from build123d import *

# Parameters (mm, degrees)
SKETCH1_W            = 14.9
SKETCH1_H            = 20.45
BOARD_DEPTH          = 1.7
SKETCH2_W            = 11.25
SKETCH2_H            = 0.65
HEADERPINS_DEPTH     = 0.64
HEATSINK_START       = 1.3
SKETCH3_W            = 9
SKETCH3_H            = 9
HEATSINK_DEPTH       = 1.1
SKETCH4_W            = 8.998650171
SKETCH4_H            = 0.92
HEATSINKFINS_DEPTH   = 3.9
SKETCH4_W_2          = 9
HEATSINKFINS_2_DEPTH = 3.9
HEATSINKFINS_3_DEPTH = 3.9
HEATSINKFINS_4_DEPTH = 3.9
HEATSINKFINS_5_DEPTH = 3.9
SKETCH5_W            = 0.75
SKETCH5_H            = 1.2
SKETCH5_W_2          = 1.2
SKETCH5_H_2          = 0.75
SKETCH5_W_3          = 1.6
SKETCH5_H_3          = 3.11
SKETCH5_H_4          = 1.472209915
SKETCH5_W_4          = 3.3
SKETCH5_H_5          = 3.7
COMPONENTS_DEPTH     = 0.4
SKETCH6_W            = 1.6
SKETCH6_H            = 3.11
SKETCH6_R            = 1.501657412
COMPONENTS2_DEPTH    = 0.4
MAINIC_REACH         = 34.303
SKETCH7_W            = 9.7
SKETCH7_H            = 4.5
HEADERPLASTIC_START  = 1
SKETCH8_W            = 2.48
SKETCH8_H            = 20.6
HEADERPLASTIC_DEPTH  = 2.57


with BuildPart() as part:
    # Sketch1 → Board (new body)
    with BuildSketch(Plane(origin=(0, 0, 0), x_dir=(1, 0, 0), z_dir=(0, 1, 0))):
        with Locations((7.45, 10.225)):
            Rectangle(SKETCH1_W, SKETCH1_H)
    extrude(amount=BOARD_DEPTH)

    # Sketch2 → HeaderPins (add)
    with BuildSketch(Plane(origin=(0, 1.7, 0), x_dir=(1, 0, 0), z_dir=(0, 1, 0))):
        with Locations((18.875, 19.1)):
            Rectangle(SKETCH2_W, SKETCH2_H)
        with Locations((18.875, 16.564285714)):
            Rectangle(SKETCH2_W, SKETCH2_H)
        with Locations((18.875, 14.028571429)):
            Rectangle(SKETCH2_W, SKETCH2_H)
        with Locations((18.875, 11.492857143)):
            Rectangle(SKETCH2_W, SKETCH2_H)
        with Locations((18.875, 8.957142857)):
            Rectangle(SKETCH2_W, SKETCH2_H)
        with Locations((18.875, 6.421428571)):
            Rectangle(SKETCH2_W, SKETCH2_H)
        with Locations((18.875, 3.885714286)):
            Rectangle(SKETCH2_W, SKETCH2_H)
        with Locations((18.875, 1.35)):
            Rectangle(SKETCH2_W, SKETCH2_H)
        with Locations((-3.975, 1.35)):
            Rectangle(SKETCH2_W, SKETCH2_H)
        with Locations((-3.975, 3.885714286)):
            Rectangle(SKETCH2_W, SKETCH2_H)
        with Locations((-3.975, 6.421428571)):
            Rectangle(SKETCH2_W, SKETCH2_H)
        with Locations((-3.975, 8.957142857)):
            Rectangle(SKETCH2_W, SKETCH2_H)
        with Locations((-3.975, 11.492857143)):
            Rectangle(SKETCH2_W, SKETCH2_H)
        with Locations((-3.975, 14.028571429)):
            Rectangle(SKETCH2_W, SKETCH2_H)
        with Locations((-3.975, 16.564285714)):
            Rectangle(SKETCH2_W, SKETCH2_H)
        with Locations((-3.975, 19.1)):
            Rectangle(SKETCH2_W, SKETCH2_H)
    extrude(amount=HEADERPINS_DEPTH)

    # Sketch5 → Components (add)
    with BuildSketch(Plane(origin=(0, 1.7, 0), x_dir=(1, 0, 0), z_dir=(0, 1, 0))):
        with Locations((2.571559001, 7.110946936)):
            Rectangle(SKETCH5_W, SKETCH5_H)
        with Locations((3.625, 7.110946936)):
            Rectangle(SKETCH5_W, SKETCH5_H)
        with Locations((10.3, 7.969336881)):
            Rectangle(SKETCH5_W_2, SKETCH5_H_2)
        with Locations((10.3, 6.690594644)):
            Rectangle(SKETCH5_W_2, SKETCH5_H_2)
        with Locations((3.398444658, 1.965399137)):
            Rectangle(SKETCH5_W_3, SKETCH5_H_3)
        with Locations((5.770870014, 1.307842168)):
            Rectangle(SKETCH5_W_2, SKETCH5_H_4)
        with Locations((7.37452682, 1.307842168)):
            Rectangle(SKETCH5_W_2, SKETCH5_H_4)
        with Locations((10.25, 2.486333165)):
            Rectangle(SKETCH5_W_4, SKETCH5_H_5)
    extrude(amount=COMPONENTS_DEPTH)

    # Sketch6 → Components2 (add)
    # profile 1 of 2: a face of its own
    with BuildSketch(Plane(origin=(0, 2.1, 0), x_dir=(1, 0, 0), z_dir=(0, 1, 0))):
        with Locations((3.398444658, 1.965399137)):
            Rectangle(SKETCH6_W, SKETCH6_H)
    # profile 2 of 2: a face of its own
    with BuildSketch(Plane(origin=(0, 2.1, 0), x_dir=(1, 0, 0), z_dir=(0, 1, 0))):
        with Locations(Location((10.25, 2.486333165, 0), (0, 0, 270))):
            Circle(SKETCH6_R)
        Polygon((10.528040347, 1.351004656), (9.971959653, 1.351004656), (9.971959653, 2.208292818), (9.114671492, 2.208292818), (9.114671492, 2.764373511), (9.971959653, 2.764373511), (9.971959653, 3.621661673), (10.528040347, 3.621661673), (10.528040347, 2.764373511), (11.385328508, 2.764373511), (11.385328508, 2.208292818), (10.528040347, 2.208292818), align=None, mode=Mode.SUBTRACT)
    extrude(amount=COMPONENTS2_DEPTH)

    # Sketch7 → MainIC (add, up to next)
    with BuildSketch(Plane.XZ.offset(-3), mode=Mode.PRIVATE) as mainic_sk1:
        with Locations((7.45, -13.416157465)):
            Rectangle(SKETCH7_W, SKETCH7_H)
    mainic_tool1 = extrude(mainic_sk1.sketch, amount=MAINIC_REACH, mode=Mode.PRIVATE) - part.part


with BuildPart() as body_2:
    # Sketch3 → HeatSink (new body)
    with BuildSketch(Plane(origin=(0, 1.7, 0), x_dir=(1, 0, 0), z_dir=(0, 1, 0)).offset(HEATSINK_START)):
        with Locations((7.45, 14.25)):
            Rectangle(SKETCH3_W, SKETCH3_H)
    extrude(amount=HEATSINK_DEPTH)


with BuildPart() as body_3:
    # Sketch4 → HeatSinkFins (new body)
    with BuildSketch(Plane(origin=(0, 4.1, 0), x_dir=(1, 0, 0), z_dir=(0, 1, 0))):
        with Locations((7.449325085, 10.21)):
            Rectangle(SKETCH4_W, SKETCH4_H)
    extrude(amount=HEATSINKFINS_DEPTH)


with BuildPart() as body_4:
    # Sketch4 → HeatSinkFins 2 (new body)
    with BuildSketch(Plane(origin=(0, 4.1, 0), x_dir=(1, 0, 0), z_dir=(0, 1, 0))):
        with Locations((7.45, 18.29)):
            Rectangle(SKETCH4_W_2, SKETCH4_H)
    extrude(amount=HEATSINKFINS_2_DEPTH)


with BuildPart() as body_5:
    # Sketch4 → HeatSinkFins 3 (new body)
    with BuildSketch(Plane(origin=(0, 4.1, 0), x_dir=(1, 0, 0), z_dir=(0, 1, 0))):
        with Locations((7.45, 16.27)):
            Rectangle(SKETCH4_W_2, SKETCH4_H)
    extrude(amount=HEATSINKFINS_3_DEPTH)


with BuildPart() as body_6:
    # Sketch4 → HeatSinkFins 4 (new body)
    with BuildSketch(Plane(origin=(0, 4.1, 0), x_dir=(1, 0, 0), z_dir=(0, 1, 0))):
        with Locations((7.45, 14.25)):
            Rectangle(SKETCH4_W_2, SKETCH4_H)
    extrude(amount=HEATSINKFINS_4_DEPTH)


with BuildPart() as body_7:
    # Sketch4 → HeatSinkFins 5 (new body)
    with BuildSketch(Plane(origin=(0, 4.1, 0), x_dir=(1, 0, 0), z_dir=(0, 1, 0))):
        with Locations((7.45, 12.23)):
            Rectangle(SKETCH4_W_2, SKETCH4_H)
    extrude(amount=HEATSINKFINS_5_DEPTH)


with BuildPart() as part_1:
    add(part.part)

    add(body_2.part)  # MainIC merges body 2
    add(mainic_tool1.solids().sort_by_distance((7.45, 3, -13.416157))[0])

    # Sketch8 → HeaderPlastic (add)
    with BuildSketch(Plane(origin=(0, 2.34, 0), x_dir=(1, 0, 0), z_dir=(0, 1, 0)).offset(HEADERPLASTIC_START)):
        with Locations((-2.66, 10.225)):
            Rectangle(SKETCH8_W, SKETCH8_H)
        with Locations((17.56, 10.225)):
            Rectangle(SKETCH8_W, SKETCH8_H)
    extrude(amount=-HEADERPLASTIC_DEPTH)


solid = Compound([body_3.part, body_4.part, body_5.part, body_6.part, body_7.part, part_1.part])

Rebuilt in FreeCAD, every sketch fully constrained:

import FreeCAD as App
import Part
import Sketcher

V = App.Vector


def add_polygon(sketch, points):
    """Adds a closed chain of lines whose ends are joined by coincident constraints."""
    first, n = sketch.GeometryCount, len(points)
    for a, b in zip(points, points[1:] + points[:1]):
        sketch.addGeometry(Part.LineSegment(App.Vector(*a, 0), App.Vector(*b, 0)), False)
    for i in range(n):
        sketch.addConstraint(Sketcher.Constraint("Coincident", first + i, 2, first + (i + 1) % n, 1))

doc = App.newDocument("Part")
body = doc.addObject("PartDesign::Body", "Body")

# Sketch on XZ plane
sketch1 = doc.addObject("Sketcher::SketchObject", "Sketch")
body.addObject(sketch1)
sketch1.AttachmentSupport = (doc.XZ_Plane, [""])
sketch1.MapMode = "FlatFace"
add_polygon(sketch1, [(0, -20), (0, 0), (15, 0), (15, -20)])  # lines 0-3
sketch1.addConstraint(Sketcher.Constraint("Vertical", 0))
sketch1.addConstraint(Sketcher.Constraint("Horizontal", 1))
sketch1.addConstraint(Sketcher.Constraint("Vertical", 2))
sketch1.addConstraint(Sketcher.Constraint("Horizontal", 3))
sketch1.addConstraint(Sketcher.Constraint("Coincident", 0, 2, -1, 1))
sketch1.addConstraint(Sketcher.Constraint("DistanceX", 1, 1, 1, 2, 14.9))
sketch1.addConstraint(Sketcher.Constraint("DistanceY", 0, 1, 0, 2, 20.45))
pad1 = doc.addObject("PartDesign::Pad", "Pad")
body.addObject(pad1)
pad1.Profile = sketch1
pad1.Length = 1.7
pad1.Reversed = True

# Sketch on XZ plane
sketch2 = doc.addObject("Sketcher::SketchObject", "Sketch001")
body.addObject(sketch2)
sketch2.AttachmentSupport = (doc.XZ_Plane, [""])
sketch2.MapMode = "FlatFace"
sketch2.AttachmentOffset = App.Placement(V(0, 0, -1.7), App.Rotation())
add_polygon(sketch2, [(13.2, -19.4), (13.2, -18.8), (24.5, -18.8), (24.5, -19.4)])  # lines 0-3
add_polygon(sketch2, [(13.2, -16.9), (13.2, -16.2), (24.5, -16.2), (24.5, -16.9)])  # lines 4-7
add_polygon(sketch2, [(13.2, -14.4), (13.2, -13.7), (24.5, -13.7), (24.5, -14.4)])  # lines 8-11
add_polygon(sketch2, [(13.2, -11.8), (13.2, -11.2), (24.5, -11.2), (24.5, -11.8)])  # lines 12-15
add_polygon(sketch2, [(13.2, -9.3), (13.2, -8.6), (24.5, -8.6), (24.5, -9.3)])  # lines 16-19
add_polygon(sketch2, [(13.2, -6.7), (13.2, -6.1), (24.5, -6.1), (24.5, -6.7)])  # lines 20-23
add_polygon(sketch2, [(13.2, -4.2), (13.2, -3.6), (24.5, -3.6), (24.5, -4.2)])  # lines 24-27
add_polygon(sketch2, [(13.2, -1.7), (13.2, -1), (24.5, -1), (24.5, -1.7)])  # lines 28-31
add_polygon(sketch2, [(-9.6, -1.7), (-9.6, -1), (1.6, -1), (1.6, -1.7)])  # lines 32-35
add_polygon(sketch2, [(-9.6, -4.2), (-9.6, -3.6), (1.6, -3.6), (1.6, -4.2)])  # lines 36-39
add_polygon(sketch2, [(-9.6, -6.7), (-9.6, -6.1), (1.6, -6.1), (1.6, -6.7)])  # lines 40-43
add_polygon(sketch2, [(-9.6, -9.3), (-9.6, -8.6), (1.6, -8.6), (1.6, -9.3)])  # lines 44-47
add_polygon(sketch2, [(-9.6, -11.8), (-9.6, -11.2), (1.6, -11.2), (1.6, -11.8)])  # lines 48-51
add_polygon(sketch2, [(-9.6, -14.4), (-9.6, -13.7), (1.6, -13.7), (1.6, -14.4)])  # lines 52-55
add_polygon(sketch2, [(-9.6, -16.9), (-9.6, -16.2), (1.6, -16.2), (1.6, -16.9)])  # lines 56-59
add_polygon(sketch2, [(-9.6, -19.4), (-9.6, -18.8), (1.6, -18.8), (1.6, -19.4)])  # lines 60-63
sketch2.addConstraint(Sketcher.Constraint("Vertical", 0))
sketch2.addConstraint(Sketcher.Constraint("Horizontal", 1))
sketch2.addConstraint(Sketcher.Constraint("Vertical", 2))
sketch2.addConstraint(Sketcher.Constraint("Horizontal", 3))
sketch2.addConstraint(Sketcher.Constraint("Vertical", 4))
sketch2.addConstraint(Sketcher.Constraint("Horizontal", 5))
sketch2.addConstraint(Sketcher.Constraint("Vertical", 6))
sketch2.addConstraint(Sketcher.Constraint("Horizontal", 7))
sketch2.addConstraint(Sketcher.Constraint("Vertical", 8))
sketch2.addConstraint(Sketcher.Constraint("Horizontal", 9))
sketch2.addConstraint(Sketcher.Constraint("Vertical", 10))
sketch2.addConstraint(Sketcher.Constraint("Horizontal", 11))
sketch2.addConstraint(Sketcher.Constraint("Vertical", 12))
sketch2.addConstraint(Sketcher.Constraint("Horizontal", 13))
sketch2.addConstraint(Sketcher.Constraint("Vertical", 14))
sketch2.addConstraint(Sketcher.Constraint("Horizontal", 15))
sketch2.addConstraint(Sketcher.Constraint("Vertical", 16))
sketch2.addConstraint(Sketcher.Constraint("Horizontal", 17))
sketch2.addConstraint(Sketcher.Constraint("Vertical", 18))
sketch2.addConstraint(Sketcher.Constraint("Horizontal", 19))
sketch2.addConstraint(Sketcher.Constraint("Vertical", 20))
sketch2.addConstraint(Sketcher.Constraint("Horizontal", 21))
sketch2.addConstraint(Sketcher.Constraint("Vertical", 22))
sketch2.addConstraint(Sketcher.Constraint("Horizontal", 23))
sketch2.addConstraint(Sketcher.Constraint("Vertical", 24))
sketch2.addConstraint(Sketcher.Constraint("Horizontal", 25))
sketch2.addConstraint(Sketcher.Constraint("Vertical", 26))
sketch2.addConstraint(Sketcher.Constraint("Horizontal", 27))
sketch2.addConstraint(Sketcher.Constraint("Vertical", 28))
sketch2.addConstraint(Sketcher.Constraint("Horizontal", 29))
sketch2.addConstraint(Sketcher.Constraint("Vertical", 30))
sketch2.addConstraint(Sketcher.Constraint("Horizontal", 31))
sketch2.addConstraint(Sketcher.Constraint("Vertical", 32))
sketch2.addConstraint(Sketcher.Constraint("Horizontal", 33))
sketch2.addConstraint(Sketcher.Constraint("Vertical", 34))
sketch2.addConstraint(Sketcher.Constraint("Horizontal", 35))
sketch2.addConstraint(Sketcher.Constraint("Vertical", 36))
sketch2.addConstraint(Sketcher.Constraint("Horizontal", 37))
sketch2.addConstraint(Sketcher.Constraint("Vertical", 38))
sketch2.addConstraint(Sketcher.Constraint("Horizontal", 39))
sketch2.addConstraint(Sketcher.Constraint("Vertical", 40))
sketch2.addConstraint(Sketcher.Constraint("Horizontal", 41))
sketch2.addConstraint(Sketcher.Constraint("Vertical", 42))
sketch2.addConstraint(Sketcher.Constraint("Horizontal", 43))
sketch2.addConstraint(Sketcher.Constraint("Vertical", 44))
sketch2.addConstraint(Sketcher.Constraint("Horizontal", 45))
sketch2.addConstraint(Sketcher.Constraint("Vertical", 46))
sketch2.addConstraint(Sketcher.Constraint("Horizontal", 47))
sketch2.addConstraint(Sketcher.Constraint("Vertical", 48))
sketch2.addConstraint(Sketcher.Constraint("Horizontal", 49))
sketch2.addConstraint(Sketcher.Constraint("Vertical", 50))
sketch2.addConstraint(Sketcher.Constraint("Horizontal", 51))
sketch2.addConstraint(Sketcher.Constraint("Vertical", 52))
sketch2.addConstraint(Sketcher.Constraint("Horizontal", 53))
sketch2.addConstraint(Sketcher.Constraint("Vertical", 54))
sketch2.addConstraint(Sketcher.Constraint("Horizontal", 55))
sketch2.addConstraint(Sketcher.Constraint("Vertical", 56))
sketch2.addConstraint(Sketcher.Constraint("Horizontal", 57))
sketch2.addConstraint(Sketcher.Constraint("Vertical", 58))
sketch2.addConstraint(Sketcher.Constraint("Horizontal", 59))
sketch2.addConstraint(Sketcher.Constraint("Vertical", 60))
sketch2.addConstraint(Sketcher.Constraint("Horizontal", 61))
sketch2.addConstraint(Sketcher.Constraint("Vertical", 62))
sketch2.addConstraint(Sketcher.Constraint("Horizontal", 63))
sketch2.addConstraint(Sketcher.Constraint("Horizontal", 29, 2, 32, 2))
sketch2.addConstraint(Sketcher.Constraint("Horizontal", 31, 2, 34, 2))
sketch2.addConstraint(Sketcher.Constraint("Horizontal", 25, 2, 36, 2))
sketch2.addConstraint(Sketcher.Constraint("Horizontal", 27, 2, 38, 2))
sketch2.addConstraint(Sketcher.Constraint("Horizontal", 21, 2, 40, 2))
sketch2.addConstraint(Sketcher.Constraint("Horizontal", 23, 2, 42, 2))
sketch2.addConstraint(Sketcher.Constraint("Horizontal", 17, 2, 44, 2))
sketch2.addConstraint(Sketcher.Constraint("Horizontal", 19, 2, 46, 2))
sketch2.addConstraint(Sketcher.Constraint("Horizontal", 13, 2, 48, 2))
sketch2.addConstraint(Sketcher.Constraint("Horizontal", 15, 2, 50, 2))
sketch2.addConstraint(Sketcher.Constraint("Horizontal", 9, 2, 52, 2))
sketch2.addConstraint(Sketcher.Constraint("Horizontal", 11, 2, 54, 2))
sketch2.addConstraint(Sketcher.Constraint("Horizontal", 5, 2, 56, 2))
sketch2.addConstraint(Sketcher.Constraint("Horizontal", 7, 2, 58, 2))
sketch2.addConstraint(Sketcher.Constraint("Horizontal", 1, 2, 60, 2))
sketch2.addConstraint(Sketcher.Constraint("Horizontal", 3, 2, 62, 2))
sketch2.addConstraint(Sketcher.Constraint("Vertical", 3, 2, 4, 2))
sketch2.addConstraint(Sketcher.Constraint("Vertical", 2, 2, 5, 2))
sketch2.addConstraint(Sketcher.Constraint("Vertical", 7, 2, 8, 2))
sketch2.addConstraint(Sketcher.Constraint("Vertical", 6, 2, 9, 2))
sketch2.addConstraint(Sketcher.Constraint("Vertical", 11, 2, 12, 2))
sketch2.addConstraint(Sketcher.Constraint("Vertical", 10, 2, 13, 2))
sketch2.addConstraint(Sketcher.Constraint("Vertical", 15, 2, 16, 2))
sketch2.addConstraint(Sketcher.Constraint("Vertical", 14, 2, 17, 2))
sketch2.addConstraint(Sketcher.Constraint("Vertical", 19, 2, 20, 2))
sketch2.addConstraint(Sketcher.Constraint("Vertical", 18, 2, 21, 2))
sketch2.addConstraint(Sketcher.Constraint("Vertical", 23, 2, 24, 2))
sketch2.addConstraint(Sketcher.Constraint("Vertical", 22, 2, 25, 2))
sketch2.addConstraint(Sketcher.Constraint("Vertical", 27, 2, 28, 2))
sketch2.addConstraint(Sketcher.Constraint("Vertical", 26, 2, 29, 2))
sketch2.addConstraint(Sketcher.Constraint("Vertical", 35, 2, 36, 2))
sketch2.addConstraint(Sketcher.Constraint("Vertical", 34, 2, 37, 2))
sketch2.addConstraint(Sketcher.Constraint("Vertical", 39, 2, 40, 2))
sketch2.addConstraint(Sketcher.Constraint("Vertical", 38, 2, 41, 2))
sketch2.addConstraint(Sketcher.Constraint("Vertical", 43, 2, 44, 2))
sketch2.addConstraint(Sketcher.Constraint("Vertical", 42, 2, 45, 2))
sketch2.addConstraint(Sketcher.Constraint("Vertical", 47, 2, 48, 2))
sketch2.addConstraint(Sketcher.Constraint("Vertical", 46, 2, 49, 2))
sketch2.addConstraint(Sketcher.Constraint("Vertical", 51, 2, 52, 2))
sketch2.addConstraint(Sketcher.Constraint("Vertical", 50, 2, 53, 2))
sketch2.addConstraint(Sketcher.Constraint("Vertical", 55, 2, 56, 2))
sketch2.addConstraint(Sketcher.Constraint("Vertical", 54, 2, 57, 2))
sketch2.addConstraint(Sketcher.Constraint("Vertical", 59, 2, 60, 2))
sketch2.addConstraint(Sketcher.Constraint("Vertical", 58, 2, 61, 2))
sketch2.addConstraint(Sketcher.Constraint("Equal", 31, 33))
sketch2.addConstraint(Sketcher.Constraint("Equal", 2, 4))
sketch2.addConstraint(Sketcher.Constraint("Equal", 6, 8))
sketch2.addConstraint(Sketcher.Constraint("Equal", 10, 12))
sketch2.addConstraint(Sketcher.Constraint("Equal", 14, 16))
sketch2.addConstraint(Sketcher.Constraint("Equal", 18, 20))
sketch2.addConstraint(Sketcher.Constraint("Equal", 22, 24))
sketch2.addConstraint(Sketcher.Constraint("Equal", 26, 28))
sketch2.addConstraint(Sketcher.Constraint("DistanceX", 1, 1, 1, 2, 11.25))
sketch2.addConstraint(Sketcher.Constraint("DistanceY", 0, 1, 0, 2, 0.65))
sketch2.addConstraint(Sketcher.Constraint("DistanceX", -1, 1, 1, 2, 24.5))
sketch2.addConstraint(Sketcher.Constraint("DistanceX", 32, 2, -1, 1, 9.6))
sketch2.addConstraint(Sketcher.Constraint("DistanceY", 0, 2, -1, 1, 18.775))
sketch2.addConstraint(Sketcher.Constraint("DistanceY", 28, 2, -1, 1, 1.025))
sketch2.addConstraint(Sketcher.Constraint("DistanceY", 8, 2, -1, 1, 13.703571))
sketch2.addConstraint(Sketcher.Constraint("DistanceY", 20, 2, -1, 1, 6.096429))
sketch2.addConstraint(Sketcher.Constraint("DistanceY", 4, 2, -1, 1, 16.239286))
sketch2.addConstraint(Sketcher.Constraint("DistanceY", 12, 2, -1, 1, 11.167857))
sketch2.addConstraint(Sketcher.Constraint("DistanceY", 16, 2, -1, 1, 8.632143))
sketch2.addConstraint(Sketcher.Constraint("DistanceY", 24, 2, -1, 1, 3.560714))
pad2 = doc.addObject("PartDesign::Pad", "Pad001")
body.addObject(pad2)
pad2.Profile = sketch2
pad2.Length = 0.64
pad2.Reversed = True

# Sketch on XZ plane
sketch3 = doc.addObject("Sketcher::SketchObject", "Sketch002")
body.addObject(sketch3)
sketch3.AttachmentSupport = (doc.XZ_Plane, [""])
sketch3.MapMode = "FlatFace"
sketch3.AttachmentOffset = App.Placement(V(0, 0, -1.7), App.Rotation())
add_polygon(sketch3, [(2.2, -7.7), (2.2, -6.5), (2.9, -6.5), (2.9, -7.7)])  # lines 0-3
add_polygon(sketch3, [(3.2, -7.7), (3.2, -6.5), (4, -6.5), (4, -7.7)])  # lines 4-7
add_polygon(sketch3, [(9.7, -8.3), (9.7, -7.6), (10.9, -7.6), (10.9, -8.3)])  # lines 8-11
add_polygon(sketch3, [(9.7, -7.1), (9.7, -6.3), (10.9, -6.3), (10.9, -7.1)])  # lines 12-15
add_polygon(sketch3, [(2.6, -3.5), (2.6, -0.4), (4.2, -0.4), (4.2, -3.5)])  # lines 16-19
add_polygon(sketch3, [(5.2, -2), (5.2, -0.6), (6.4, -0.6), (6.4, -2)])  # lines 20-23
add_polygon(sketch3, [(6.8, -2), (6.8, -0.6), (8, -0.6), (8, -2)])  # lines 24-27
add_polygon(sketch3, [(8.6, -4.3), (8.6, -0.6), (11.9, -0.6), (11.9, -4.3)])  # lines 28-31
sketch3.addConstraint(Sketcher.Constraint("Vertical", 0))
sketch3.addConstraint(Sketcher.Constraint("Horizontal", 1))
sketch3.addConstraint(Sketcher.Constraint("Vertical", 2))
sketch3.addConstraint(Sketcher.Constraint("Horizontal", 3))
sketch3.addConstraint(Sketcher.Constraint("Vertical", 4))
sketch3.addConstraint(Sketcher.Constraint("Horizontal", 5))
sketch3.addConstraint(Sketcher.Constraint("Vertical", 6))
sketch3.addConstraint(Sketcher.Constraint("Horizontal", 7))
sketch3.addConstraint(Sketcher.Constraint("Vertical", 8))
sketch3.addConstraint(Sketcher.Constraint("Horizontal", 9))
sketch3.addConstraint(Sketcher.Constraint("Vertical", 10))
sketch3.addConstraint(Sketcher.Constraint("Horizontal", 11))
sketch3.addConstraint(Sketcher.Constraint("Vertical", 12))
sketch3.addConstraint(Sketcher.Constraint("Horizontal", 13))
sketch3.addConstraint(Sketcher.Constraint("Vertical", 14))
sketch3.addConstraint(Sketcher.Constraint("Horizontal", 15))
sketch3.addConstraint(Sketcher.Constraint("Vertical", 16))
sketch3.addConstraint(Sketcher.Constraint("Horizontal", 17))
sketch3.addConstraint(Sketcher.Constraint("Vertical", 18))
sketch3.addConstraint(Sketcher.Constraint("Horizontal", 19))
sketch3.addConstraint(Sketcher.Constraint("Vertical", 20))
sketch3.addConstraint(Sketcher.Constraint("Horizontal", 21))
sketch3.addConstraint(Sketcher.Constraint("Vertical", 22))
sketch3.addConstraint(Sketcher.Constraint("Horizontal", 23))
sketch3.addConstraint(Sketcher.Constraint("Vertical", 24))
sketch3.addConstraint(Sketcher.Constraint("Horizontal", 25))
sketch3.addConstraint(Sketcher.Constraint("Vertical", 26))
sketch3.addConstraint(Sketcher.Constraint("Horizontal", 27))
sketch3.addConstraint(Sketcher.Constraint("Vertical", 28))
sketch3.addConstraint(Sketcher.Constraint("Horizontal", 29))
sketch3.addConstraint(Sketcher.Constraint("Vertical", 30))
sketch3.addConstraint(Sketcher.Constraint("Horizontal", 31))
sketch3.addConstraint(Sketcher.Constraint("Horizontal", 1, 2, 4, 2))
sketch3.addConstraint(Sketcher.Constraint("Horizontal", 3, 2, 6, 2))
sketch3.addConstraint(Sketcher.Constraint("Horizontal", 21, 2, 24, 2))
sketch3.addConstraint(Sketcher.Constraint("Horizontal", 23, 2, 26, 2))
sketch3.addConstraint(Sketcher.Constraint("Vertical", 11, 2, 12, 2))
sketch3.addConstraint(Sketcher.Constraint("Vertical", 10, 2, 13, 2))
sketch3.addConstraint(Sketcher.Constraint("Equal", 3, 5))
sketch3.addConstraint(Sketcher.Constraint("Equal", 15, 21))
sketch3.addConstraint(Sketcher.Constraint("Equal", 23, 25))
sketch3.addConstraint(Sketcher.Constraint("Equal", 27, 0))
sketch3.addConstraint(Sketcher.Constraint("Equal", 7, 8))
sketch3.addConstraint(Sketcher.Constraint("Equal", 10, 12))
sketch3.addConstraint(Sketcher.Constraint("DistanceX", 9, 1, 9, 2, 1.2))
sketch3.addConstraint(Sketcher.Constraint("DistanceX", 17, 1, 17, 2, 1.6))
sketch3.addConstraint(Sketcher.Constraint("DistanceX", 29, 1, 29, 2, 3.3))
sketch3.addConstraint(Sketcher.Constraint("DistanceY", 28, 1, 28, 2, 3.7))
sketch3.addConstraint(Sketcher.Constraint("DistanceX", -1, 1, 5, 2, 4.0))
sketch3.addConstraint(Sketcher.Constraint("DistanceX", 13, 2, 30, 2, 1.0))
sketch3.addConstraint(Sketcher.Constraint("DistanceX", 1, 1, 1, 2, 0.75))
sketch3.addConstraint(Sketcher.Constraint("DistanceY", 16, 1, 16, 2, 3.11))
sketch3.addConstraint(Sketcher.Constraint("DistanceX", -1, 1, 8, 2, 9.7))
sketch3.addConstraint(Sketcher.Constraint("DistanceY", 20, 1, 20, 2, 1.47221))
sketch3.addConstraint(Sketcher.Constraint("DistanceY", 16, 2, -1, 1, 0.410399))
sketch3.addConstraint(Sketcher.Constraint("DistanceX", -1, 1, 0, 2, 2.196559))
sketch3.addConstraint(Sketcher.Constraint("DistanceX", -1, 1, 20, 2, 5.17087))
sketch3.addConstraint(Sketcher.Constraint("DistanceY", 6, 2, 8, 2, 0.11661))
sketch3.addConstraint(Sketcher.Constraint("DistanceY", 20, 2, 17, 2, 0.161338))
sketch3.addConstraint(Sketcher.Constraint("DistanceY", 5, 2, 20, 2, 5.93921))
sketch3.addConstraint(Sketcher.Constraint("DistanceY", 13, 2, 30, 2, 1.979261))
sketch3.addConstraint(Sketcher.Constraint("DistanceY", 12, 2, -1, 1, 6.315595))
sketch3.addConstraint(Sketcher.Constraint("DistanceX", -1, 1, 16, 2, 2.598445))
sketch3.addConstraint(Sketcher.Constraint("DistanceX", -1, 1, 24, 2, 6.774527))
pad3 = doc.addObject("PartDesign::Pad", "Pad002")
body.addObject(pad3)
pad3.Profile = sketch3
pad3.Length = 0.4
pad3.Reversed = True

# Sketch on XZ plane
sketch4 = doc.addObject("Sketcher::SketchObject", "Sketch003")
body.addObject(sketch4)
sketch4.AttachmentSupport = (doc.XZ_Plane, [""])
sketch4.MapMode = "FlatFace"
sketch4.AttachmentOffset = App.Placement(V(0, 0, -2.1), App.Rotation())
add_polygon(sketch4, [(2.6, -3.5), (2.6, -0.4), (4.2, -0.4), (4.2, -3.5)])  # lines 0-3
sketch4.addGeometry(Part.Circle(V(10.2, -2.5, 0), V(0, 0, 1), 1.5), False)  # 4
add_polygon(sketch4, [(10.5, -2.2), (10.5, -1.4), (10, -1.4), (10, -2.2), (9.1, -2.2), (9.1, -2.8), (10, -2.8), (10, -3.6), (10.5, -3.6), (10.5, -2.8), (11.4, -2.8), (11.4, -2.2)])  # lines 5-16
sketch4.addConstraint(Sketcher.Constraint("Vertical", 0))
sketch4.addConstraint(Sketcher.Constraint("Horizontal", 1))
sketch4.addConstraint(Sketcher.Constraint("Vertical", 2))
sketch4.addConstraint(Sketcher.Constraint("Horizontal", 3))
sketch4.addConstraint(Sketcher.Constraint("Vertical", 5))
sketch4.addConstraint(Sketcher.Constraint("Horizontal", 6))
sketch4.addConstraint(Sketcher.Constraint("Vertical", 7))
sketch4.addConstraint(Sketcher.Constraint("Horizontal", 8))
sketch4.addConstraint(Sketcher.Constraint("Vertical", 9))
sketch4.addConstraint(Sketcher.Constraint("Horizontal", 10))
sketch4.addConstraint(Sketcher.Constraint("Vertical", 11))
sketch4.addConstraint(Sketcher.Constraint("Horizontal", 12))
sketch4.addConstraint(Sketcher.Constraint("Vertical", 13))
sketch4.addConstraint(Sketcher.Constraint("Horizontal", 14))
sketch4.addConstraint(Sketcher.Constraint("Vertical", 15))
sketch4.addConstraint(Sketcher.Constraint("Horizontal", 16))
sketch4.addConstraint(Sketcher.Constraint("Horizontal", 10, 2, 13, 2))
sketch4.addConstraint(Sketcher.Constraint("Horizontal", 8, 2, 15, 2))
sketch4.addConstraint(Sketcher.Constraint("Vertical", 7, 2, 10, 2))
sketch4.addConstraint(Sketcher.Constraint("Vertical", 5, 2, 12, 2))
sketch4.addConstraint(Sketcher.Constraint("Equal", 10, 14))
sketch4.addConstraint(Sketcher.Constraint("Equal", 16, 5))
sketch4.addConstraint(Sketcher.Constraint("Equal", 12, 9))
sketch4.addConstraint(Sketcher.Constraint("Equal", 7, 11))
sketch4.addConstraint(Sketcher.Constraint("DistanceX", 1, 1, 1, 2, 1.6))
sketch4.addConstraint(Sketcher.Constraint("DistanceY", 0, 1, 0, 2, 3.11))
sketch4.addConstraint(Sketcher.Constraint("DistanceX", -1, 1, 4, 3, 10.25))
sketch4.addConstraint(Sketcher.Constraint("Diameter", 4, 3.003315))
sketch4.addConstraint(Sketcher.Constraint("DistanceX", 6, 2, 6, 1, 0.556081))
sketch4.addConstraint(Sketcher.Constraint("DistanceX", 8, 2, 8, 1, 0.857288))
sketch4.addConstraint(Sketcher.Constraint("DistanceY", 0, 2, -1, 1, 0.410399))
sketch4.addConstraint(Sketcher.Constraint("DistanceX", -1, 1, 5, 2, 10.52804))
sketch4.addConstraint(Sketcher.Constraint("DistanceY", 11, 2, -1, 1, 3.621662))
sketch4.addConstraint(Sketcher.Constraint("DistanceY", 4, 3, 5, 2, 1.135329))
sketch4.addConstraint(Sketcher.Constraint("DistanceX", -1, 1, 0, 2, 2.598445))
pad4 = doc.addObject("PartDesign::Pad", "Pad003")
body.addObject(pad4)
pad4.Profile = sketch4
pad4.Length = 0.4
pad4.Reversed = True
body2 = doc.addObject("PartDesign::Body", "Body001")

# Sketch on XZ plane
sketch5 = doc.addObject("Sketcher::SketchObject", "Sketch004")
body2.addObject(sketch5)
sketch5.AttachmentSupport = (doc.getObject("XZ_Plane001"), [""])
sketch5.MapMode = "FlatFace"
sketch5.AttachmentOffset = App.Placement(V(0, 0, -3), App.Rotation())
add_polygon(sketch5, [(3, -19), (3, -10), (12, -10), (12, -19)])  # lines 0-3
sketch5.addConstraint(Sketcher.Constraint("Vertical", 0))
sketch5.addConstraint(Sketcher.Constraint("Horizontal", 1))
sketch5.addConstraint(Sketcher.Constraint("Vertical", 2))
sketch5.addConstraint(Sketcher.Constraint("Horizontal", 3))
sketch5.addConstraint(Sketcher.Constraint("Equal", 3, 0))
sketch5.addConstraint(Sketcher.Constraint("DistanceX", 1, 1, 1, 2, 9.0))
sketch5.addConstraint(Sketcher.Constraint("DistanceX", -1, 1, 0, 2, 2.95))
sketch5.addConstraint(Sketcher.Constraint("DistanceY", 0, 2, -1, 1, 9.75))
pad5 = doc.addObject("PartDesign::Pad", "Pad004")
body2.addObject(pad5)
pad5.Profile = sketch5
pad5.Length = 1.1
pad5.Reversed = True
body3 = doc.addObject("PartDesign::Body", "Body002")

# Sketch on XZ plane
sketch6 = doc.addObject("Sketcher::SketchObject", "Sketch005")
body3.addObject(sketch6)
sketch6.AttachmentSupport = (doc.getObject("XZ_Plane002"), [""])
sketch6.MapMode = "FlatFace"
sketch6.AttachmentOffset = App.Placement(V(0, 0, -4.1), App.Rotation())
add_polygon(sketch6, [(3, -10.7), (3, -9.8), (11.9, -9.8), (11.9, -10.7)])  # lines 0-3
sketch6.addConstraint(Sketcher.Constraint("Vertical", 0))
sketch6.addConstraint(Sketcher.Constraint("Horizontal", 1))
sketch6.addConstraint(Sketcher.Constraint("Vertical", 2))
sketch6.addConstraint(Sketcher.Constraint("Horizontal", 3))
sketch6.addConstraint(Sketcher.Constraint("DistanceY", 0, 1, 0, 2, 0.92))
sketch6.addConstraint(Sketcher.Constraint("DistanceX", -1, 1, 0, 2, 2.95))
sketch6.addConstraint(Sketcher.Constraint("DistanceY", 0, 2, -1, 1, 9.75))
sketch6.addConstraint(Sketcher.Constraint("DistanceX", 1, 1, 1, 2, 8.99865))
pad6 = doc.addObject("PartDesign::Pad", "Pad005")
body3.addObject(pad6)
pad6.Profile = sketch6
pad6.Length = 3.9
pad6.Reversed = True
body4 = doc.addObject("PartDesign::Body", "Body003")

# Sketch on XZ plane
sketch7 = doc.addObject("Sketcher::SketchObject", "Sketch006")
body4.addObject(sketch7)
sketch7.AttachmentSupport = (doc.getObject("XZ_Plane003"), [""])
sketch7.MapMode = "FlatFace"
sketch7.AttachmentOffset = App.Placement(V(0, 0, -4.1), App.Rotation())
add_polygon(sketch7, [(3, -18.8), (3, -17.8), (11.9, -17.8), (11.9, -18.8)])  # lines 0-3
sketch7.addConstraint(Sketcher.Constraint("Vertical", 0))
sketch7.addConstraint(Sketcher.Constraint("Horizontal", 1))
sketch7.addConstraint(Sketcher.Constraint("Vertical", 2))
sketch7.addConstraint(Sketcher.Constraint("Horizontal", 3))
sketch7.addConstraint(Sketcher.Constraint("DistanceX", 1, 1, 1, 2, 9.0))
sketch7.addConstraint(Sketcher.Constraint("DistanceY", 0, 1, 0, 2, 0.92))
sketch7.addConstraint(Sketcher.Constraint("DistanceX", -1, 1, 0, 2, 2.95))
sketch7.addConstraint(Sketcher.Constraint("DistanceY", 0, 2, -1, 1, 17.83))
pad7 = doc.addObject("PartDesign::Pad", "Pad006")
body4.addObject(pad7)
pad7.Profile = sketch7
pad7.Length = 3.9
pad7.Reversed = True
body5 = doc.addObject("PartDesign::Body", "Body004")

# Sketch on XZ plane
sketch8 = doc.addObject("Sketcher::SketchObject", "Sketch007")
body5.addObject(sketch8)
sketch8.AttachmentSupport = (doc.getObject("XZ_Plane004"), [""])
sketch8.MapMode = "FlatFace"
sketch8.AttachmentOffset = App.Placement(V(0, 0, -4.1), App.Rotation())
add_polygon(sketch8, [(3, -16.7), (3, -15.8), (11.9, -15.8), (11.9, -16.7)])  # lines 0-3
sketch8.addConstraint(Sketcher.Constraint("Vertical", 0))
sketch8.addConstraint(Sketcher.Constraint("Horizontal", 1))
sketch8.addConstraint(Sketcher.Constraint("Vertical", 2))
sketch8.addConstraint(Sketcher.Constraint("Horizontal", 3))
sketch8.addConstraint(Sketcher.Constraint("DistanceX", 1, 1, 1, 2, 9.0))
sketch8.addConstraint(Sketcher.Constraint("DistanceY", 0, 1, 0, 2, 0.92))
sketch8.addConstraint(Sketcher.Constraint("DistanceX", -1, 1, 0, 2, 2.95))
sketch8.addConstraint(Sketcher.Constraint("DistanceY", 0, 2, -1, 1, 15.81))
pad8 = doc.addObject("PartDesign::Pad", "Pad007")
body5.addObject(pad8)
pad8.Profile = sketch8
pad8.Length = 3.9
pad8.Reversed = True
body6 = doc.addObject("PartDesign::Body", "Body005")

# Sketch on XZ plane
sketch9 = doc.addObject("Sketcher::SketchObject", "Sketch008")
body6.addObject(sketch9)
sketch9.AttachmentSupport = (doc.getObject("XZ_Plane005"), [""])
sketch9.MapMode = "FlatFace"
sketch9.AttachmentOffset = App.Placement(V(0, 0, -4.1), App.Rotation())
add_polygon(sketch9, [(3, -14.7), (3, -13.8), (11.9, -13.8), (11.9, -14.7)])  # lines 0-3
sketch9.addConstraint(Sketcher.Constraint("Vertical", 0))
sketch9.addConstraint(Sketcher.Constraint("Horizontal", 1))
sketch9.addConstraint(Sketcher.Constraint("Vertical", 2))
sketch9.addConstraint(Sketcher.Constraint("Horizontal", 3))
sketch9.addConstraint(Sketcher.Constraint("DistanceX", 1, 1, 1, 2, 9.0))
sketch9.addConstraint(Sketcher.Constraint("DistanceY", 0, 1, 0, 2, 0.92))
sketch9.addConstraint(Sketcher.Constraint("DistanceX", -1, 1, 0, 2, 2.95))
sketch9.addConstraint(Sketcher.Constraint("DistanceY", 0, 2, -1, 1, 13.79))
pad9 = doc.addObject("PartDesign::Pad", "Pad008")
body6.addObject(pad9)
pad9.Profile = sketch9
pad9.Length = 3.9
pad9.Reversed = True
body7 = doc.addObject("PartDesign::Body", "Body006")

# Sketch on XZ plane
sketch10 = doc.addObject("Sketcher::SketchObject", "Sketch009")
body7.addObject(sketch10)
sketch10.AttachmentSupport = (doc.getObject("XZ_Plane006"), [""])
sketch10.MapMode = "FlatFace"
sketch10.AttachmentOffset = App.Placement(V(0, 0, -4.1), App.Rotation())
add_polygon(sketch10, [(3, -12.7), (3, -11.8), (11.9, -11.8), (11.9, -12.7)])  # lines 0-3
sketch10.addConstraint(Sketcher.Constraint("Vertical", 0))
sketch10.addConstraint(Sketcher.Constraint("Horizontal", 1))
sketch10.addConstraint(Sketcher.Constraint("Vertical", 2))
sketch10.addConstraint(Sketcher.Constraint("Horizontal", 3))
sketch10.addConstraint(Sketcher.Constraint("DistanceX", 1, 1, 1, 2, 9.0))
sketch10.addConstraint(Sketcher.Constraint("DistanceY", 0, 1, 0, 2, 0.92))
sketch10.addConstraint(Sketcher.Constraint("DistanceX", -1, 1, 0, 2, 2.95))
sketch10.addConstraint(Sketcher.Constraint("DistanceY", 0, 2, -1, 1, 11.77))
pad10 = doc.addObject("PartDesign::Pad", "Pad009")
body7.addObject(pad10)
pad10.Profile = sketch10
pad10.Length = 3.9
pad10.Reversed = True
body.AllowCompound = True
doc.recompute()

boolean = doc.addObject("PartDesign::Boolean", "Boolean")
body.addObject(boolean)
boolean.Type = "Fuse"
boolean.addObjects([body2])

# Sketch on XZ plane
sketch11 = doc.addObject("Sketcher::SketchObject", "Sketch010")
body.addObject(sketch11)
sketch11.AttachmentSupport = (doc.XZ_Plane, [""])
sketch11.MapMode = "FlatFace"
sketch11.AttachmentOffset = App.Placement(V(0, 0, -3), App.Rotation())
add_polygon(sketch11, [(2.6, -11.2), (2.6, -15.7), (12.3, -15.7), (12.3, -11.2)])  # lines 0-3
sketch11.addConstraint(Sketcher.Constraint("Vertical", 0))
sketch11.addConstraint(Sketcher.Constraint("Horizontal", 1))
sketch11.addConstraint(Sketcher.Constraint("Vertical", 2))
sketch11.addConstraint(Sketcher.Constraint("Horizontal", 3))
sketch11.addConstraint(Sketcher.Constraint("DistanceX", 1, 1, 1, 2, 9.7))
sketch11.addConstraint(Sketcher.Constraint("DistanceY", 0, 2, 0, 1, 4.5))
sketch11.addConstraint(Sketcher.Constraint("DistanceX", -1, 1, 0, 2, 2.6))
sketch11.addConstraint(Sketcher.Constraint("DistanceY", 0, 2, -1, 1, 15.666157))
pad11 = doc.addObject("PartDesign::Pad", "Pad010")
body.addObject(pad11)
pad11.Profile = sketch11
pad11.Type = "UpToFirst"

# Sketch on XZ plane
sketch12 = doc.addObject("Sketcher::SketchObject", "Sketch011")
body.addObject(sketch12)
sketch12.AttachmentSupport = (doc.XZ_Plane, [""])
sketch12.MapMode = "FlatFace"
sketch12.AttachmentOffset = App.Placement(V(0, 0, -3.34), App.Rotation())
add_polygon(sketch12, [(-3.9, -20.5), (-3.9, 0.1), (-1.4, 0.1), (-1.4, -20.5)])  # lines 0-3
add_polygon(sketch12, [(16.3, -20.5), (16.3, 0.1), (18.8, 0.1), (18.8, -20.5)])  # lines 4-7
sketch12.addConstraint(Sketcher.Constraint("Vertical", 0))
sketch12.addConstraint(Sketcher.Constraint("Horizontal", 1))
sketch12.addConstraint(Sketcher.Constraint("Vertical", 2))
sketch12.addConstraint(Sketcher.Constraint("Horizontal", 3))
sketch12.addConstraint(Sketcher.Constraint("Vertical", 4))
sketch12.addConstraint(Sketcher.Constraint("Horizontal", 5))
sketch12.addConstraint(Sketcher.Constraint("Vertical", 6))
sketch12.addConstraint(Sketcher.Constraint("Horizontal", 7))
sketch12.addConstraint(Sketcher.Constraint("Horizontal", 1, 2, 4, 2))
sketch12.addConstraint(Sketcher.Constraint("Horizontal", 3, 2, 6, 2))
sketch12.addConstraint(Sketcher.Constraint("Equal", 3, 5))
sketch12.addConstraint(Sketcher.Constraint("DistanceY", 0, 1, 0, 2, 20.6))
sketch12.addConstraint(Sketcher.Constraint("DistanceX", 1, 1, 1, 2, 2.48))
sketch12.addConstraint(Sketcher.Constraint("DistanceX", 0, 2, -1, 1, 3.9))
sketch12.addConstraint(Sketcher.Constraint("DistanceX", -1, 1, 5, 2, 18.8))
sketch12.addConstraint(Sketcher.Constraint("DistanceY", -1, 1, 0, 2, 0.075))
pad12 = doc.addObject("PartDesign::Pad", "Pad011")
body.addObject(pad12)
pad12.Profile = sketch12
pad12.Length = 2.57

doc.recompute()
